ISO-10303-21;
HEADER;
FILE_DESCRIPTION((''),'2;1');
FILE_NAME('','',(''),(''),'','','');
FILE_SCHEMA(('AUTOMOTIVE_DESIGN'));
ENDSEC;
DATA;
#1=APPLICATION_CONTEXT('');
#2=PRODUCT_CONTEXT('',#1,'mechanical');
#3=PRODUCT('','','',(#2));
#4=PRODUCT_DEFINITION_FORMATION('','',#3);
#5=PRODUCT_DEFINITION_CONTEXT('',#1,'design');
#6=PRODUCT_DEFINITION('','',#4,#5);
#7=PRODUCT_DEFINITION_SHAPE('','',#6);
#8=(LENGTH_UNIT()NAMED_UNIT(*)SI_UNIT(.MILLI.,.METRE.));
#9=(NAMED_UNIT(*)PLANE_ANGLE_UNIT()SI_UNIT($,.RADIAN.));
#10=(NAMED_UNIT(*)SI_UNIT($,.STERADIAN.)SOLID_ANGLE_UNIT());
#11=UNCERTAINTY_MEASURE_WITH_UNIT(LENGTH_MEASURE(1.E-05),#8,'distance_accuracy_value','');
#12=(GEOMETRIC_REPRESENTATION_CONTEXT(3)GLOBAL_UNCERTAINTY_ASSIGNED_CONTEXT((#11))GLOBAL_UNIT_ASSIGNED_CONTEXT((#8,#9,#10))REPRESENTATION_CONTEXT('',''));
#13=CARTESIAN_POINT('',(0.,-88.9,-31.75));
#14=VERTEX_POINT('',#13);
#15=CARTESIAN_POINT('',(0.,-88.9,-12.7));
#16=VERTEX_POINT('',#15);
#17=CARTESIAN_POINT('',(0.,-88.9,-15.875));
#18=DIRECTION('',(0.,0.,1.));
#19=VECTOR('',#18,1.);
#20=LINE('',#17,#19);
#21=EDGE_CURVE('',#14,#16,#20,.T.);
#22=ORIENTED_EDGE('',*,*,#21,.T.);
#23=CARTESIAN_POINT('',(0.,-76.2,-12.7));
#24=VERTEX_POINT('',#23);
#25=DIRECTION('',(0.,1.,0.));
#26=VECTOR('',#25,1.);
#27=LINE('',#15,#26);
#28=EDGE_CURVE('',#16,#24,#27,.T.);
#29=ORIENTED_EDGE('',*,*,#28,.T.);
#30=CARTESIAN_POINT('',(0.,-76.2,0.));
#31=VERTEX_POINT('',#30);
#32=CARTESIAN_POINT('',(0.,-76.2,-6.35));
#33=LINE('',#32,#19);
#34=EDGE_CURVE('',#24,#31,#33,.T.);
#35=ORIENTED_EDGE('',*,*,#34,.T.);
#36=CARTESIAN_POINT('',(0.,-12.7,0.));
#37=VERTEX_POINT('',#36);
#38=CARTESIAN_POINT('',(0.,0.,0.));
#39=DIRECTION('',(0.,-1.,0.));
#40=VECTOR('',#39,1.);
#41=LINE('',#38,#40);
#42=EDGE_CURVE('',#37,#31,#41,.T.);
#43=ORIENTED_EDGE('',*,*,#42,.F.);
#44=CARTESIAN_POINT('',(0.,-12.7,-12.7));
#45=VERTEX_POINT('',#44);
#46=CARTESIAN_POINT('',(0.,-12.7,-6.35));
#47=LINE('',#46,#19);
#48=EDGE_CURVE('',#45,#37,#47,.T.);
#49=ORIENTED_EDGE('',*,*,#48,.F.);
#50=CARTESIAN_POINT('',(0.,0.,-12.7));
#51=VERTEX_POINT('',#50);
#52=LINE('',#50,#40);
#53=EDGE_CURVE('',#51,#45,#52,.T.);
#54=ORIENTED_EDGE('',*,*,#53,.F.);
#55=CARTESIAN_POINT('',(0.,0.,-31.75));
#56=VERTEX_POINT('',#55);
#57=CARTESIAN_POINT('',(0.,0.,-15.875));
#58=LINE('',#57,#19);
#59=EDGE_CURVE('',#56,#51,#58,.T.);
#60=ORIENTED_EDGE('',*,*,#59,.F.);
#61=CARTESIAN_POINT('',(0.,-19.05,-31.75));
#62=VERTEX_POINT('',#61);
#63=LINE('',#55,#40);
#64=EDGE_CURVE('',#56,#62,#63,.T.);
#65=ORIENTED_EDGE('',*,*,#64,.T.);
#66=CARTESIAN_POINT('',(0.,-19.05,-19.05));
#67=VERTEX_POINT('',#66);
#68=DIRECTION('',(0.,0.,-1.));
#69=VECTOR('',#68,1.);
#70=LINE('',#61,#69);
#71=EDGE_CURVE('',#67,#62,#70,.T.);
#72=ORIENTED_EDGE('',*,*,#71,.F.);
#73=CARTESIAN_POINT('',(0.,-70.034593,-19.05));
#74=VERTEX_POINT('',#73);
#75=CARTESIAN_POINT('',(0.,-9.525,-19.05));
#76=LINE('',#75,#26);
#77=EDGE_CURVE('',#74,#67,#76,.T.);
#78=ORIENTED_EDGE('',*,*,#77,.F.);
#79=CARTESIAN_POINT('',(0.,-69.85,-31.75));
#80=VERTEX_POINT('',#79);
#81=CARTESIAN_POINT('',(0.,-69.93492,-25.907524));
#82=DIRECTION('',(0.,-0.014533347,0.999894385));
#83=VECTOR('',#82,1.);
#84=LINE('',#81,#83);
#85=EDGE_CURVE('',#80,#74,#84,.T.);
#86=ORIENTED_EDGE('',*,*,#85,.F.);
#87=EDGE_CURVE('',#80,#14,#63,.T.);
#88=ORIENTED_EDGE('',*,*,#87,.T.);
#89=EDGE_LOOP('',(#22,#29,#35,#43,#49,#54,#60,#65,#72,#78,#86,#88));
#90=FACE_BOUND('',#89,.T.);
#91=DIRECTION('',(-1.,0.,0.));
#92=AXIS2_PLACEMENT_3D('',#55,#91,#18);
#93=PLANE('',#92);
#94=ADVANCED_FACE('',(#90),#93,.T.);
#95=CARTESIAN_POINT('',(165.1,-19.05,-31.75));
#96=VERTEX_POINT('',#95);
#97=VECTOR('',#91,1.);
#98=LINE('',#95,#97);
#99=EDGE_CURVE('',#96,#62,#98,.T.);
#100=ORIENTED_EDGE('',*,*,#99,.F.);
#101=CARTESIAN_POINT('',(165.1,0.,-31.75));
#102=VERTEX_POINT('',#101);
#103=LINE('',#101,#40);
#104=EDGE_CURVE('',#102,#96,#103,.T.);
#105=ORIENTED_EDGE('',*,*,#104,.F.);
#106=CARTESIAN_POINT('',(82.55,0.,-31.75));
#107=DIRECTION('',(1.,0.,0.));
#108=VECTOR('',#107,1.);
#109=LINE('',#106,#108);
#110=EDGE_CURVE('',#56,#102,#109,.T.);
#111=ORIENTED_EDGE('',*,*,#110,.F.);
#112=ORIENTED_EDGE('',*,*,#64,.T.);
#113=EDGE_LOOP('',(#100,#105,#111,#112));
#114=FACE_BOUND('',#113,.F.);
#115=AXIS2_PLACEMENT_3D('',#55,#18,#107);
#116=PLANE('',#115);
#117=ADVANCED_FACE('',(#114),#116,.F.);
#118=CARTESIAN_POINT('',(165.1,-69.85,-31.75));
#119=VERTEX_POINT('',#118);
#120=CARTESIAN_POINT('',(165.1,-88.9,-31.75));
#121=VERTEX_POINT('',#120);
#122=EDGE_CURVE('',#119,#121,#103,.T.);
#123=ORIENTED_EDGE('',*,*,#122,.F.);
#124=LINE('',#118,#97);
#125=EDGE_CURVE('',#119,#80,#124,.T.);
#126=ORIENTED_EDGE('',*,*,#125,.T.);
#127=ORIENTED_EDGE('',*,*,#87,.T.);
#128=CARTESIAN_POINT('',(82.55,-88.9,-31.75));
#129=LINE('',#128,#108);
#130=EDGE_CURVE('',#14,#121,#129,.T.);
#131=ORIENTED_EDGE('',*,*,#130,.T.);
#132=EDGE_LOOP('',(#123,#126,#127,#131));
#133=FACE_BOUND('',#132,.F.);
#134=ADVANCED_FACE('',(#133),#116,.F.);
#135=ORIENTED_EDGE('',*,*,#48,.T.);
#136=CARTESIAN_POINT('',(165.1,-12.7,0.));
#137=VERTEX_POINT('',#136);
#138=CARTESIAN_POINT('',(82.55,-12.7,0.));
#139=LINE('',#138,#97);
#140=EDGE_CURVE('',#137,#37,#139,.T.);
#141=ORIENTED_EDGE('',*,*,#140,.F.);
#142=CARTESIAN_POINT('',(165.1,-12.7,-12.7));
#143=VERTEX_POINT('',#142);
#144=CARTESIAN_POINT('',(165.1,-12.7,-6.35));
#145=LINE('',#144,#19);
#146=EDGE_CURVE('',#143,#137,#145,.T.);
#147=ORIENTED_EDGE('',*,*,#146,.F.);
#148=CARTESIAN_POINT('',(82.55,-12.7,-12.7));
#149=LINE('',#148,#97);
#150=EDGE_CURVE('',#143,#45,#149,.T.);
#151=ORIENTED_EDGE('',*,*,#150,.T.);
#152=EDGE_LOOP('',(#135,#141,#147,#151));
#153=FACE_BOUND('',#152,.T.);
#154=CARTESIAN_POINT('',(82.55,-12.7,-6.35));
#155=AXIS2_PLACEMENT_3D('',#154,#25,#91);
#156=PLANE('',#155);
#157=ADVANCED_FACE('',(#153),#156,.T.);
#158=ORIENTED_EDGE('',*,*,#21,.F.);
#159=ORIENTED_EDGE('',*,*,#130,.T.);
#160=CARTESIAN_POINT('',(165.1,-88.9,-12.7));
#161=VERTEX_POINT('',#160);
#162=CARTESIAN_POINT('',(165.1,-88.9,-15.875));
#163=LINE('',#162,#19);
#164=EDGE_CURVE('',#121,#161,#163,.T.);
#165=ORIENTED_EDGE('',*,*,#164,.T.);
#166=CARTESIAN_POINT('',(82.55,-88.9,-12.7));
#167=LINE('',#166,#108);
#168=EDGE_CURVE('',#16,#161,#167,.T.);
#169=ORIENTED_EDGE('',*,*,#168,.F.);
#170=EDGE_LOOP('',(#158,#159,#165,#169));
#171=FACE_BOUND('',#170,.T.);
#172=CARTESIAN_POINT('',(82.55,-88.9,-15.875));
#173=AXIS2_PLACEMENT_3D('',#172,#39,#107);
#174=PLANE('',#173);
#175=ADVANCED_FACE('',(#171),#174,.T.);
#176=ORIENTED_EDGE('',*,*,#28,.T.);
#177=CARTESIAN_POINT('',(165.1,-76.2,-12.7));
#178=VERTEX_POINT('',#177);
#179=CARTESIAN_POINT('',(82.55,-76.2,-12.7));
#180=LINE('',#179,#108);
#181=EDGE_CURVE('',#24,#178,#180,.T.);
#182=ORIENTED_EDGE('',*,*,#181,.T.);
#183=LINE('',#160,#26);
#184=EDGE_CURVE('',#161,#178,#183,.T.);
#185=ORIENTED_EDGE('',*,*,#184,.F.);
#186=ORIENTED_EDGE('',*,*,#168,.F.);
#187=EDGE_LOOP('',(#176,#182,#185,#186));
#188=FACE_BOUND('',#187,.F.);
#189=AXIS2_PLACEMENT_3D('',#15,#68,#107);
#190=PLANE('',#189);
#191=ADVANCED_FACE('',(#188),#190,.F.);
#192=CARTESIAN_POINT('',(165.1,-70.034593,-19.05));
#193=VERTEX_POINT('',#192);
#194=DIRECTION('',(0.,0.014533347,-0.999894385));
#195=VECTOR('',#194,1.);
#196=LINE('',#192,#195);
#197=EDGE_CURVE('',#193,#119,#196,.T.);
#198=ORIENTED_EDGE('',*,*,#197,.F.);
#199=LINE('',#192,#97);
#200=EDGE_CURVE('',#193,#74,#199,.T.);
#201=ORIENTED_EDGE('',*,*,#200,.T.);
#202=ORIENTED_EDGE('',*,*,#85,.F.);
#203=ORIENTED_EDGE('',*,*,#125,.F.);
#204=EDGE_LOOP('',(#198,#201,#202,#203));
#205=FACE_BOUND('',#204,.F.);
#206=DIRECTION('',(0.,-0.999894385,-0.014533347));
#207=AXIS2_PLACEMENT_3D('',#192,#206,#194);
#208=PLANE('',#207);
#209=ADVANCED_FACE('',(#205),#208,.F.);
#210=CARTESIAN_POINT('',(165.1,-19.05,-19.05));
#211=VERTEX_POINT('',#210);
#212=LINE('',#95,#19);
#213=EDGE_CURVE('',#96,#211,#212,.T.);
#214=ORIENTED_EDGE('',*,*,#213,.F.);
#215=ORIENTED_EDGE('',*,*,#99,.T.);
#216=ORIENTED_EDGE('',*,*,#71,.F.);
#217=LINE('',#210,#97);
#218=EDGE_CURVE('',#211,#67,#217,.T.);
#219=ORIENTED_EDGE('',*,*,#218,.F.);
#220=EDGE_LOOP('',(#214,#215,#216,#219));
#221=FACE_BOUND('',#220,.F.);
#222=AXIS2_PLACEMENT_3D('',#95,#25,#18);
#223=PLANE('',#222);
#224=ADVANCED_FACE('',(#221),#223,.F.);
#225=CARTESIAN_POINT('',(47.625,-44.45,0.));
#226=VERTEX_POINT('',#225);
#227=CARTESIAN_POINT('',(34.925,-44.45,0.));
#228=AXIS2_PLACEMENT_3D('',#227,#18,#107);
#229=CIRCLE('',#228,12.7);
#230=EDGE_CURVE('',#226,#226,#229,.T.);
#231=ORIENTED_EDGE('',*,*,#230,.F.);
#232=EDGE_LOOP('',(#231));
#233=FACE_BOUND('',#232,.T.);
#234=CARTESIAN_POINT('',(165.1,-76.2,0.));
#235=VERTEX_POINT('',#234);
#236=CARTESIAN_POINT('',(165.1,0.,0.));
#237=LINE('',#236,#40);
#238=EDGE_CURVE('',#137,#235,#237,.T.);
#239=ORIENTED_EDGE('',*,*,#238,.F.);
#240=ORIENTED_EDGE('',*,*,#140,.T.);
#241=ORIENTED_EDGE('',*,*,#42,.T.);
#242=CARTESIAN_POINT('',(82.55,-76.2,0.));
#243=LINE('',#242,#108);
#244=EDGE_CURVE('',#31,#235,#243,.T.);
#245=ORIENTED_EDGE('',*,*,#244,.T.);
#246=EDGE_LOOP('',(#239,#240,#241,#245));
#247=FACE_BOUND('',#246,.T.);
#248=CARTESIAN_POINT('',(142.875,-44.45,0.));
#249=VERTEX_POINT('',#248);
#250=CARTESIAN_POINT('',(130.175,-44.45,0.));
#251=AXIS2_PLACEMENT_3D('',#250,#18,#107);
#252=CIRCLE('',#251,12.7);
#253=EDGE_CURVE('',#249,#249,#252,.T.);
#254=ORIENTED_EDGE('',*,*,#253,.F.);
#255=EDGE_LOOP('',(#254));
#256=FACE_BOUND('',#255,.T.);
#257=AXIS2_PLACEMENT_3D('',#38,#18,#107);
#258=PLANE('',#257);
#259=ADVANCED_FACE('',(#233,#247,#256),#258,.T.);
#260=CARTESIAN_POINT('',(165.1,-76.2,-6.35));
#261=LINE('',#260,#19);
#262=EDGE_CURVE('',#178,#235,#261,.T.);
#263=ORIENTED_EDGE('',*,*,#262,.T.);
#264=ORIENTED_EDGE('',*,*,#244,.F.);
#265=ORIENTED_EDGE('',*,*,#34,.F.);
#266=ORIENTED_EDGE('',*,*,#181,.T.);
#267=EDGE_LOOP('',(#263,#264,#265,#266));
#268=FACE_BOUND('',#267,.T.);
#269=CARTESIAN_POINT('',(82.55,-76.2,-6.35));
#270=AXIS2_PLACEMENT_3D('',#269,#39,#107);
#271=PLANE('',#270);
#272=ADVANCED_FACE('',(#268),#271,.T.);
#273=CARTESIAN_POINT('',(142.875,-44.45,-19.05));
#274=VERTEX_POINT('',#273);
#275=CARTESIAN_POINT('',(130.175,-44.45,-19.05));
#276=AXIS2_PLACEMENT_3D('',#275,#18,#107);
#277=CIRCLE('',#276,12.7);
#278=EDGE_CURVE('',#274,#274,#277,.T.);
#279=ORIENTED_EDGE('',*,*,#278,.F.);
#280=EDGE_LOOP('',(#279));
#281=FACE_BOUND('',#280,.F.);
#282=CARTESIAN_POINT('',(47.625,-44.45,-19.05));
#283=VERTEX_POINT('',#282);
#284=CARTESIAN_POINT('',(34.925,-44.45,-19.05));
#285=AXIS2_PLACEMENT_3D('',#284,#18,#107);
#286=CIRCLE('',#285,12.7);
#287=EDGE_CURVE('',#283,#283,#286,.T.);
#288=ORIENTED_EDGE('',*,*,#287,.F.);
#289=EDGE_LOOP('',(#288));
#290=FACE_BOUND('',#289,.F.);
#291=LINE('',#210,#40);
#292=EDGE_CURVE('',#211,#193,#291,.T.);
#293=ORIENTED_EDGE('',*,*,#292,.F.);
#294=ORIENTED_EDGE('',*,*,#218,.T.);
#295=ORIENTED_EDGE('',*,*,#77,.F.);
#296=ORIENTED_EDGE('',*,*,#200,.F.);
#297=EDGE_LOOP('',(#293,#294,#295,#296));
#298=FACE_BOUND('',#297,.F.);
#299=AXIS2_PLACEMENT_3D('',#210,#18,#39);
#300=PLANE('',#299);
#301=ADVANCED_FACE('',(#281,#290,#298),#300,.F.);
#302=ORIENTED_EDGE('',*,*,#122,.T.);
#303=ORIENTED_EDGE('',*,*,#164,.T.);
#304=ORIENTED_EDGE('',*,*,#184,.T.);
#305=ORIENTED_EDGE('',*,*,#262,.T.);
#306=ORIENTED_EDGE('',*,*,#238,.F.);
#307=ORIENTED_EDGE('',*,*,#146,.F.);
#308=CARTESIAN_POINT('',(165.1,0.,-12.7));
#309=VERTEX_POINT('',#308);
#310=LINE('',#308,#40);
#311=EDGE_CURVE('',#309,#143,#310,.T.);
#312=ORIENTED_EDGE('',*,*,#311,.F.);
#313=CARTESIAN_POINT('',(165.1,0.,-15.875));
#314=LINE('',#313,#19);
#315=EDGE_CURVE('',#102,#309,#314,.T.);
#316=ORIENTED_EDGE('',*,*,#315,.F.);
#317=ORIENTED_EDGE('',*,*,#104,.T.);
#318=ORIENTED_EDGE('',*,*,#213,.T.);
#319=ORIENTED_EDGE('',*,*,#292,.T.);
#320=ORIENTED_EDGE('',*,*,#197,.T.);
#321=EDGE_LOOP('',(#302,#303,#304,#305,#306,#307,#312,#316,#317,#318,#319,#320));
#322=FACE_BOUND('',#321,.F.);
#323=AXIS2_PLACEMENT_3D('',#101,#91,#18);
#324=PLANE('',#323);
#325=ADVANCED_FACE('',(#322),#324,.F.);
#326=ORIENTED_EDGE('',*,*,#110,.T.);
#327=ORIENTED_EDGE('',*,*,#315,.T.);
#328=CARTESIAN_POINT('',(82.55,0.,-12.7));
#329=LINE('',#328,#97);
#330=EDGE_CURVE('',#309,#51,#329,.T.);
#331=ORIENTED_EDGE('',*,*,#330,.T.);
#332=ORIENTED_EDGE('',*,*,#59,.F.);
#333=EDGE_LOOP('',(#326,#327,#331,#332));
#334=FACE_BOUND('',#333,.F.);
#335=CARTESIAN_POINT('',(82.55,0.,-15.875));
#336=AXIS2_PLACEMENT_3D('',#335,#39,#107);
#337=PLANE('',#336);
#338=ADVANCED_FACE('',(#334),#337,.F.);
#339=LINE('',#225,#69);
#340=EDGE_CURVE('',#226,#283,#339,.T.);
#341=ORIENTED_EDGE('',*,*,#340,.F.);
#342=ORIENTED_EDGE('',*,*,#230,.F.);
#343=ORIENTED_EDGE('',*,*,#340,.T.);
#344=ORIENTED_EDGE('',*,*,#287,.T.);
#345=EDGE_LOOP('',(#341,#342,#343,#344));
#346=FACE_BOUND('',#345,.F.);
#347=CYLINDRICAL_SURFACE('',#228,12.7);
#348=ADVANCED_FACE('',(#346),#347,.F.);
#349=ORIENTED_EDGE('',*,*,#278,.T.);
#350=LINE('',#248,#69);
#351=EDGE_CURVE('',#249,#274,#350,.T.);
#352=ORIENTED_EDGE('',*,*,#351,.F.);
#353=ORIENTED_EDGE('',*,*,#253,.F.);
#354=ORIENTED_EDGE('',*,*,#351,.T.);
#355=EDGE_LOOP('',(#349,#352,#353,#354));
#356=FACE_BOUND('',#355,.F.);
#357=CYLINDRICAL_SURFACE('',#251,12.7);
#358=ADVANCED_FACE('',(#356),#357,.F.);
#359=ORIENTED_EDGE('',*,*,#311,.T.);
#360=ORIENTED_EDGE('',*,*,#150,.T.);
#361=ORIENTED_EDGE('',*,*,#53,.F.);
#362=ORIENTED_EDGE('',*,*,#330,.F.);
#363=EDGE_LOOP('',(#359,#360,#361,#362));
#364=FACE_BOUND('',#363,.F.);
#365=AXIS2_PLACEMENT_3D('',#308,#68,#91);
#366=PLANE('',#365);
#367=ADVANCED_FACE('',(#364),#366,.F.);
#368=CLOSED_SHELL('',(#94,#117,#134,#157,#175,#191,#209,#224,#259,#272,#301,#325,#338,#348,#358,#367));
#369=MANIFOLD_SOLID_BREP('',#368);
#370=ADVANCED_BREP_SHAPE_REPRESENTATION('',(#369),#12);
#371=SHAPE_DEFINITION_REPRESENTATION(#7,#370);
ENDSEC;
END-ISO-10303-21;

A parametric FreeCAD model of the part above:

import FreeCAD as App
import Part
import Sketcher

V = App.Vector
Q = App.Units.Quantity


def add_polygon(sketch, points):
    """Adds a closed chain of lines whose ends are joined by coincident constraints."""
    first, n = sketch.GeometryCount, len(points)
    for a, b in zip(points, points[1:] + points[:1]):
        sketch.addGeometry(Part.LineSegment(App.Vector(*a, 0), App.Vector(*b, 0)), False)
    for i in range(n):
        sketch.addConstraint(Sketcher.Constraint("Coincident", first + i, 2, first + (i + 1) % n, 1))

doc = App.newDocument("Part")
body = doc.addObject("PartDesign::Body", "Body")

# Sketch on XZ plane
sketch1 = body.newObject("Sketcher::SketchObject", "Sketch")
sketch1.AttachmentSupport = (doc.getObject("XZ_Plane"), [""])
sketch1.MapMode = "FlatFace"
add_polygon(sketch1, [(0, 0), (0, -32), (165, -32), (165, 0)])  # lines 0-3
sketch1.addConstraint([
    Sketcher.Constraint("Vertical", 0),
    Sketcher.Constraint("Horizontal", 1),
    Sketcher.Constraint("Vertical", 2),
    Sketcher.Constraint("Horizontal", 3),
    Sketcher.Constraint("Coincident", 3, 2, -1, 1),
    Sketcher.Constraint("DistanceX", 1, 1, 1, 2, Q("6.5 in")),
    Sketcher.Constraint("DistanceY", 0, 2, 0, 1, Q("1.25 in")),
])
pad1 = body.newObject("PartDesign::Pad", "Pad")
pad1.Profile = sketch1
pad1.Length = Q("3.5 in")

# Sketch on YZ plane
sketch2 = body.newObject("Sketcher::SketchObject", "Sketch001")
sketch2.AttachmentSupport = (doc.getObject("YZ_Plane"), [""])
sketch2.MapMode = "FlatFace"
sketch2.AttachmentOffset = App.Placement(V(0, 0, 6.5 * 25.4), App.Rotation())
add_polygon(sketch2, [(-70.034593, -19.05), (-69.85, -31.75), (-19.05, -31.75), (-19.05, -19.05)])  # lines 0-3
sketch2.addConstraint([
    Sketcher.Constraint("Horizontal", 1),
    Sketcher.Constraint("Vertical", 2),
    Sketcher.Constraint("Horizontal", 3),
    Sketcher.Constraint("DistanceX", 1, 1, 1, 2, Q("2 in")),
    Sketcher.Constraint("DistanceY", 2, 1, 2, 2, Q("0.5 in")),
    Sketcher.Constraint("DistanceX", 0, 2, -1, 1, Q("2.75 in")),
    Sketcher.Constraint("DistanceY", 0, 2, -1, 1, Q("1.25 in")),
    Sketcher.Constraint("Distance", 0, 12.701341),
])
pocket1 = body.newObject("PartDesign::Pocket", "Pocket")
pocket1.Profile = sketch2
pocket1.Type = "ThroughAll"

# Sketch on XZ plane
sketch3 = body.newObject("Sketcher::SketchObject", "Sketch002")
sketch3.AttachmentSupport = (doc.getObject("XZ_Plane"), [""])
sketch3.MapMode = "FlatFace"
sketch3.AttachmentOffset = App.Placement(V(0, 0, 3.5 * 25.4), App.Rotation())
add_polygon(sketch3, [(0, 0), (0, -13), (165, -13), (165, 0)])  # lines 0-3
sketch3.addConstraint([
    Sketcher.Constraint("Vertical", 0),
    Sketcher.Constraint("Horizontal", 1),
    Sketcher.Constraint("Vertical", 2),
    Sketcher.Constraint("Horizontal", 3),
    Sketcher.Constraint("Coincident", 3, 2, -1, 1),
    Sketcher.Constraint("DistanceX", 1, 1, 1, 2, Q("6.5 in")),
    Sketcher.Constraint("DistanceY", 0, 2, 0, 1, Q("0.5 in")),
])
pocket2 = body.newObject("PartDesign::Pocket", "Pocket001")
pocket2.Profile = sketch3
pocket2.Length = Q("0.5 in")

# Sketch on XZ plane
sketch4 = body.newObject("Sketcher::SketchObject", "Sketch003")
sketch4.AttachmentSupport = (doc.getObject("XZ_Plane"), [""])
sketch4.MapMode = "FlatFace"
add_polygon(sketch4, [(165, 0), (165, -13), (0, -13), (0, 0)])  # lines 0-3
sketch4.addConstraint([
    Sketcher.Constraint("Vertical", 0),
    Sketcher.Constraint("Horizontal", 1),
    Sketcher.Constraint("Vertical", 2),
    Sketcher.Constraint("Horizontal", 3),
    Sketcher.Constraint("Coincident", 2, 2, -1, 1),
    Sketcher.Constraint("DistanceX", 1, 2, 1, 1, Q("6.5 in")),
    Sketcher.Constraint("DistanceY", 0, 2, 0, 1, Q("0.5 in")),
])
pocket3 = body.newObject("PartDesign::Pocket", "Pocket002")
pocket3.Profile = sketch4
pocket3.Length = Q("0.5 in")
pocket3.Reversed = True

# Sketch on XY plane
sketch5 = body.newObject("Sketcher::SketchObject", "Sketch004")
sketch5.AttachmentSupport = (doc.getObject("XY_Plane"), [""])
sketch5.MapMode = "FlatFace"
sketch5.addGeometry([
    Part.Circle(V(35, -44, 0), V(0, 0, 1), 13),
    Part.Circle(V(130, -44, 0), V(0, 0, 1), 13),
], False)
sketch5.addConstraint([
    Sketcher.Constraint("Equal", 0, 1),
    Sketcher.Constraint("Horizontal", 0, 3, 1, 3),
    Sketcher.Constraint("Diameter", 0, Q("1 in")),
    Sketcher.Constraint("DistanceY", 0, 3, -1, 1, Q("1.75 in")),
    Sketcher.Constraint("DistanceX", 0, 3, 1, 3, Q("3.75 in")),
    Sketcher.Constraint("DistanceX", -1, 1, 0, 3, Q("1.375 in")),
])
pocket4 = body.newObject("PartDesign::Pocket", "Pocket003")
pocket4.Profile = sketch5
pocket4.Type = "ThroughAll"

doc.recompute()
